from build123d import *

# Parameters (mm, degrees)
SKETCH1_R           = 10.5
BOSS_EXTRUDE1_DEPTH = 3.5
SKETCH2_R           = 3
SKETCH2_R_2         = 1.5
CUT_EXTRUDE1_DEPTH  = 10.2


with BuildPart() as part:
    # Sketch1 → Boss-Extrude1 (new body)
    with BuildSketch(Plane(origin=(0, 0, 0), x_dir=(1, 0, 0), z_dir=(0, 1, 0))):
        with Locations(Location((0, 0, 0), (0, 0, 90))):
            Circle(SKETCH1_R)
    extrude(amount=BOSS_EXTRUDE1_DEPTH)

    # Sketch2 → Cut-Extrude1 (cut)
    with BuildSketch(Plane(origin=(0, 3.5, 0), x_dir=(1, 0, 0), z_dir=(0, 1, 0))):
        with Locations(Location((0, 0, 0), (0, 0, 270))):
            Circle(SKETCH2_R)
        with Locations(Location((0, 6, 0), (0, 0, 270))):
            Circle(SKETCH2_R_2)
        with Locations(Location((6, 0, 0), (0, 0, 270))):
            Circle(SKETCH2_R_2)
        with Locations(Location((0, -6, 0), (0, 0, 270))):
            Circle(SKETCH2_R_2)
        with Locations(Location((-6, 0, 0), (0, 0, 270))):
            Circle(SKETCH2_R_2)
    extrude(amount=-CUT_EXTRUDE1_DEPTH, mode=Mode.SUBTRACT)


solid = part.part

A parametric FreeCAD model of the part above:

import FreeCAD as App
import Part
import Sketcher
from FreeCAD import Vector
Q = App.Units.Quantity

doc = App.newDocument("Part")
params = doc.addObject("Spreadsheet::Sheet", "Params")
for row, (alias, value) in enumerate([
    ("sketch1_diameter", "21 mm"),
    ("pad1_length", "3.5 mm"),
    ("sketch2_diameter", "6 mm"),
    ("sketch2_diameter2", "3 mm"),
    ("pocket1_length", "10.2 mm"),
], start=1):
    params.set(f"A{row}", alias)
    params.set(f"B{row}", "=" + value)
    params.setAlias(f"B{row}", alias)

body = doc.addObject("PartDesign::Body", "Body")

sketch1 = doc.addObject("Sketcher::SketchObject", "Sketch")
body.addObject(sketch1)
sketch1.AttachmentSupport = (doc.XZ_Plane, [""])
sketch1.MapMode = "FlatFace"
sketch1.addGeometry(Part.Circle(Vector(0, 0, 0), Vector(0, 0, 1), 10.5), False)
sketch1.addConstraint([
    Sketcher.Constraint("Coincident", 0, 3, -1, 1),
    Sketcher.Constraint("Diameter", 0, Q("21 mm")),
])
sketch1.setExpression("Constraints[1]", "Params.sketch1_diameter")
pad1 = doc.addObject("PartDesign::Pad", "Pad")
body.addObject(pad1)
pad1.Profile = sketch1
pad1.setExpression("Length", "Params.pad1_length")
pad1.Reversed = True

sketch2 = doc.addObject("Sketcher::SketchObject", "Sketch001")
body.addObject(sketch2)
sketch2.AttachmentSupport = (doc.XZ_Plane, [""])
sketch2.MapMode = "FlatFace"
sketch2.AttachmentOffset = App.Placement(Vector(0, 0, -3.5), App.Rotation())
sketch2.addGeometry([
    Part.Circle(Vector(0, 0, 0), Vector(0, 0, 1), 3),
    Part.Circle(Vector(0, -6, 0), Vector(0, 0, 1), 1.5),
    Part.Circle(Vector(6, 0, 0), Vector(0, 0, 1), 1.5),
    Part.Circle(Vector(0, 6, 0), Vector(0, 0, 1), 1.5),
    Part.Circle(Vector(-6, 0, 0), Vector(0, 0, 1), 1.5),
], False)
sketch2.addConstraint([
    Sketcher.Constraint("Coincident", 0, 3, -1, 1),
    Sketcher.Constraint("Equal", 1, 2),
    Sketcher.Constraint("Equal", 2, 3),
    Sketcher.Constraint("Equal", 3, 4),
    Sketcher.Constraint("Symmetric", 1, 3, 3, 3, -1, 1),
    Sketcher.Constraint("Symmetric", 2, 3, 4, 3, -1, 1),
    Sketcher.Constraint("PointOnObject", 1, 3, -2),
    Sketcher.Constraint("PointOnObject", 2, 3, -1),
    Sketcher.Constraint("Diameter", 0, Q("6 mm")),
    Sketcher.Constraint("Diameter", 1, Q("3 mm")),
    Sketcher.Constraint("DistanceY", 1, 3, -1, 1, Q("6 mm")),
    Sketcher.Constraint("DistanceX", -1, 1, 2, 3, Q("6 mm")),
])
sketch2.setExpression("Constraints[8]", "Params.sketch2_diameter")
sketch2.setExpression("Constraints[9]", "Params.sketch2_diameter2")
pocket1 = doc.addObject("PartDesign::Pocket", "Pocket")
body.addObject(pocket1)
pocket1.Profile = sketch2
pocket1.setExpression("Length", "Params.pocket1_length")
pocket1.Reversed = True

doc.recompute()
